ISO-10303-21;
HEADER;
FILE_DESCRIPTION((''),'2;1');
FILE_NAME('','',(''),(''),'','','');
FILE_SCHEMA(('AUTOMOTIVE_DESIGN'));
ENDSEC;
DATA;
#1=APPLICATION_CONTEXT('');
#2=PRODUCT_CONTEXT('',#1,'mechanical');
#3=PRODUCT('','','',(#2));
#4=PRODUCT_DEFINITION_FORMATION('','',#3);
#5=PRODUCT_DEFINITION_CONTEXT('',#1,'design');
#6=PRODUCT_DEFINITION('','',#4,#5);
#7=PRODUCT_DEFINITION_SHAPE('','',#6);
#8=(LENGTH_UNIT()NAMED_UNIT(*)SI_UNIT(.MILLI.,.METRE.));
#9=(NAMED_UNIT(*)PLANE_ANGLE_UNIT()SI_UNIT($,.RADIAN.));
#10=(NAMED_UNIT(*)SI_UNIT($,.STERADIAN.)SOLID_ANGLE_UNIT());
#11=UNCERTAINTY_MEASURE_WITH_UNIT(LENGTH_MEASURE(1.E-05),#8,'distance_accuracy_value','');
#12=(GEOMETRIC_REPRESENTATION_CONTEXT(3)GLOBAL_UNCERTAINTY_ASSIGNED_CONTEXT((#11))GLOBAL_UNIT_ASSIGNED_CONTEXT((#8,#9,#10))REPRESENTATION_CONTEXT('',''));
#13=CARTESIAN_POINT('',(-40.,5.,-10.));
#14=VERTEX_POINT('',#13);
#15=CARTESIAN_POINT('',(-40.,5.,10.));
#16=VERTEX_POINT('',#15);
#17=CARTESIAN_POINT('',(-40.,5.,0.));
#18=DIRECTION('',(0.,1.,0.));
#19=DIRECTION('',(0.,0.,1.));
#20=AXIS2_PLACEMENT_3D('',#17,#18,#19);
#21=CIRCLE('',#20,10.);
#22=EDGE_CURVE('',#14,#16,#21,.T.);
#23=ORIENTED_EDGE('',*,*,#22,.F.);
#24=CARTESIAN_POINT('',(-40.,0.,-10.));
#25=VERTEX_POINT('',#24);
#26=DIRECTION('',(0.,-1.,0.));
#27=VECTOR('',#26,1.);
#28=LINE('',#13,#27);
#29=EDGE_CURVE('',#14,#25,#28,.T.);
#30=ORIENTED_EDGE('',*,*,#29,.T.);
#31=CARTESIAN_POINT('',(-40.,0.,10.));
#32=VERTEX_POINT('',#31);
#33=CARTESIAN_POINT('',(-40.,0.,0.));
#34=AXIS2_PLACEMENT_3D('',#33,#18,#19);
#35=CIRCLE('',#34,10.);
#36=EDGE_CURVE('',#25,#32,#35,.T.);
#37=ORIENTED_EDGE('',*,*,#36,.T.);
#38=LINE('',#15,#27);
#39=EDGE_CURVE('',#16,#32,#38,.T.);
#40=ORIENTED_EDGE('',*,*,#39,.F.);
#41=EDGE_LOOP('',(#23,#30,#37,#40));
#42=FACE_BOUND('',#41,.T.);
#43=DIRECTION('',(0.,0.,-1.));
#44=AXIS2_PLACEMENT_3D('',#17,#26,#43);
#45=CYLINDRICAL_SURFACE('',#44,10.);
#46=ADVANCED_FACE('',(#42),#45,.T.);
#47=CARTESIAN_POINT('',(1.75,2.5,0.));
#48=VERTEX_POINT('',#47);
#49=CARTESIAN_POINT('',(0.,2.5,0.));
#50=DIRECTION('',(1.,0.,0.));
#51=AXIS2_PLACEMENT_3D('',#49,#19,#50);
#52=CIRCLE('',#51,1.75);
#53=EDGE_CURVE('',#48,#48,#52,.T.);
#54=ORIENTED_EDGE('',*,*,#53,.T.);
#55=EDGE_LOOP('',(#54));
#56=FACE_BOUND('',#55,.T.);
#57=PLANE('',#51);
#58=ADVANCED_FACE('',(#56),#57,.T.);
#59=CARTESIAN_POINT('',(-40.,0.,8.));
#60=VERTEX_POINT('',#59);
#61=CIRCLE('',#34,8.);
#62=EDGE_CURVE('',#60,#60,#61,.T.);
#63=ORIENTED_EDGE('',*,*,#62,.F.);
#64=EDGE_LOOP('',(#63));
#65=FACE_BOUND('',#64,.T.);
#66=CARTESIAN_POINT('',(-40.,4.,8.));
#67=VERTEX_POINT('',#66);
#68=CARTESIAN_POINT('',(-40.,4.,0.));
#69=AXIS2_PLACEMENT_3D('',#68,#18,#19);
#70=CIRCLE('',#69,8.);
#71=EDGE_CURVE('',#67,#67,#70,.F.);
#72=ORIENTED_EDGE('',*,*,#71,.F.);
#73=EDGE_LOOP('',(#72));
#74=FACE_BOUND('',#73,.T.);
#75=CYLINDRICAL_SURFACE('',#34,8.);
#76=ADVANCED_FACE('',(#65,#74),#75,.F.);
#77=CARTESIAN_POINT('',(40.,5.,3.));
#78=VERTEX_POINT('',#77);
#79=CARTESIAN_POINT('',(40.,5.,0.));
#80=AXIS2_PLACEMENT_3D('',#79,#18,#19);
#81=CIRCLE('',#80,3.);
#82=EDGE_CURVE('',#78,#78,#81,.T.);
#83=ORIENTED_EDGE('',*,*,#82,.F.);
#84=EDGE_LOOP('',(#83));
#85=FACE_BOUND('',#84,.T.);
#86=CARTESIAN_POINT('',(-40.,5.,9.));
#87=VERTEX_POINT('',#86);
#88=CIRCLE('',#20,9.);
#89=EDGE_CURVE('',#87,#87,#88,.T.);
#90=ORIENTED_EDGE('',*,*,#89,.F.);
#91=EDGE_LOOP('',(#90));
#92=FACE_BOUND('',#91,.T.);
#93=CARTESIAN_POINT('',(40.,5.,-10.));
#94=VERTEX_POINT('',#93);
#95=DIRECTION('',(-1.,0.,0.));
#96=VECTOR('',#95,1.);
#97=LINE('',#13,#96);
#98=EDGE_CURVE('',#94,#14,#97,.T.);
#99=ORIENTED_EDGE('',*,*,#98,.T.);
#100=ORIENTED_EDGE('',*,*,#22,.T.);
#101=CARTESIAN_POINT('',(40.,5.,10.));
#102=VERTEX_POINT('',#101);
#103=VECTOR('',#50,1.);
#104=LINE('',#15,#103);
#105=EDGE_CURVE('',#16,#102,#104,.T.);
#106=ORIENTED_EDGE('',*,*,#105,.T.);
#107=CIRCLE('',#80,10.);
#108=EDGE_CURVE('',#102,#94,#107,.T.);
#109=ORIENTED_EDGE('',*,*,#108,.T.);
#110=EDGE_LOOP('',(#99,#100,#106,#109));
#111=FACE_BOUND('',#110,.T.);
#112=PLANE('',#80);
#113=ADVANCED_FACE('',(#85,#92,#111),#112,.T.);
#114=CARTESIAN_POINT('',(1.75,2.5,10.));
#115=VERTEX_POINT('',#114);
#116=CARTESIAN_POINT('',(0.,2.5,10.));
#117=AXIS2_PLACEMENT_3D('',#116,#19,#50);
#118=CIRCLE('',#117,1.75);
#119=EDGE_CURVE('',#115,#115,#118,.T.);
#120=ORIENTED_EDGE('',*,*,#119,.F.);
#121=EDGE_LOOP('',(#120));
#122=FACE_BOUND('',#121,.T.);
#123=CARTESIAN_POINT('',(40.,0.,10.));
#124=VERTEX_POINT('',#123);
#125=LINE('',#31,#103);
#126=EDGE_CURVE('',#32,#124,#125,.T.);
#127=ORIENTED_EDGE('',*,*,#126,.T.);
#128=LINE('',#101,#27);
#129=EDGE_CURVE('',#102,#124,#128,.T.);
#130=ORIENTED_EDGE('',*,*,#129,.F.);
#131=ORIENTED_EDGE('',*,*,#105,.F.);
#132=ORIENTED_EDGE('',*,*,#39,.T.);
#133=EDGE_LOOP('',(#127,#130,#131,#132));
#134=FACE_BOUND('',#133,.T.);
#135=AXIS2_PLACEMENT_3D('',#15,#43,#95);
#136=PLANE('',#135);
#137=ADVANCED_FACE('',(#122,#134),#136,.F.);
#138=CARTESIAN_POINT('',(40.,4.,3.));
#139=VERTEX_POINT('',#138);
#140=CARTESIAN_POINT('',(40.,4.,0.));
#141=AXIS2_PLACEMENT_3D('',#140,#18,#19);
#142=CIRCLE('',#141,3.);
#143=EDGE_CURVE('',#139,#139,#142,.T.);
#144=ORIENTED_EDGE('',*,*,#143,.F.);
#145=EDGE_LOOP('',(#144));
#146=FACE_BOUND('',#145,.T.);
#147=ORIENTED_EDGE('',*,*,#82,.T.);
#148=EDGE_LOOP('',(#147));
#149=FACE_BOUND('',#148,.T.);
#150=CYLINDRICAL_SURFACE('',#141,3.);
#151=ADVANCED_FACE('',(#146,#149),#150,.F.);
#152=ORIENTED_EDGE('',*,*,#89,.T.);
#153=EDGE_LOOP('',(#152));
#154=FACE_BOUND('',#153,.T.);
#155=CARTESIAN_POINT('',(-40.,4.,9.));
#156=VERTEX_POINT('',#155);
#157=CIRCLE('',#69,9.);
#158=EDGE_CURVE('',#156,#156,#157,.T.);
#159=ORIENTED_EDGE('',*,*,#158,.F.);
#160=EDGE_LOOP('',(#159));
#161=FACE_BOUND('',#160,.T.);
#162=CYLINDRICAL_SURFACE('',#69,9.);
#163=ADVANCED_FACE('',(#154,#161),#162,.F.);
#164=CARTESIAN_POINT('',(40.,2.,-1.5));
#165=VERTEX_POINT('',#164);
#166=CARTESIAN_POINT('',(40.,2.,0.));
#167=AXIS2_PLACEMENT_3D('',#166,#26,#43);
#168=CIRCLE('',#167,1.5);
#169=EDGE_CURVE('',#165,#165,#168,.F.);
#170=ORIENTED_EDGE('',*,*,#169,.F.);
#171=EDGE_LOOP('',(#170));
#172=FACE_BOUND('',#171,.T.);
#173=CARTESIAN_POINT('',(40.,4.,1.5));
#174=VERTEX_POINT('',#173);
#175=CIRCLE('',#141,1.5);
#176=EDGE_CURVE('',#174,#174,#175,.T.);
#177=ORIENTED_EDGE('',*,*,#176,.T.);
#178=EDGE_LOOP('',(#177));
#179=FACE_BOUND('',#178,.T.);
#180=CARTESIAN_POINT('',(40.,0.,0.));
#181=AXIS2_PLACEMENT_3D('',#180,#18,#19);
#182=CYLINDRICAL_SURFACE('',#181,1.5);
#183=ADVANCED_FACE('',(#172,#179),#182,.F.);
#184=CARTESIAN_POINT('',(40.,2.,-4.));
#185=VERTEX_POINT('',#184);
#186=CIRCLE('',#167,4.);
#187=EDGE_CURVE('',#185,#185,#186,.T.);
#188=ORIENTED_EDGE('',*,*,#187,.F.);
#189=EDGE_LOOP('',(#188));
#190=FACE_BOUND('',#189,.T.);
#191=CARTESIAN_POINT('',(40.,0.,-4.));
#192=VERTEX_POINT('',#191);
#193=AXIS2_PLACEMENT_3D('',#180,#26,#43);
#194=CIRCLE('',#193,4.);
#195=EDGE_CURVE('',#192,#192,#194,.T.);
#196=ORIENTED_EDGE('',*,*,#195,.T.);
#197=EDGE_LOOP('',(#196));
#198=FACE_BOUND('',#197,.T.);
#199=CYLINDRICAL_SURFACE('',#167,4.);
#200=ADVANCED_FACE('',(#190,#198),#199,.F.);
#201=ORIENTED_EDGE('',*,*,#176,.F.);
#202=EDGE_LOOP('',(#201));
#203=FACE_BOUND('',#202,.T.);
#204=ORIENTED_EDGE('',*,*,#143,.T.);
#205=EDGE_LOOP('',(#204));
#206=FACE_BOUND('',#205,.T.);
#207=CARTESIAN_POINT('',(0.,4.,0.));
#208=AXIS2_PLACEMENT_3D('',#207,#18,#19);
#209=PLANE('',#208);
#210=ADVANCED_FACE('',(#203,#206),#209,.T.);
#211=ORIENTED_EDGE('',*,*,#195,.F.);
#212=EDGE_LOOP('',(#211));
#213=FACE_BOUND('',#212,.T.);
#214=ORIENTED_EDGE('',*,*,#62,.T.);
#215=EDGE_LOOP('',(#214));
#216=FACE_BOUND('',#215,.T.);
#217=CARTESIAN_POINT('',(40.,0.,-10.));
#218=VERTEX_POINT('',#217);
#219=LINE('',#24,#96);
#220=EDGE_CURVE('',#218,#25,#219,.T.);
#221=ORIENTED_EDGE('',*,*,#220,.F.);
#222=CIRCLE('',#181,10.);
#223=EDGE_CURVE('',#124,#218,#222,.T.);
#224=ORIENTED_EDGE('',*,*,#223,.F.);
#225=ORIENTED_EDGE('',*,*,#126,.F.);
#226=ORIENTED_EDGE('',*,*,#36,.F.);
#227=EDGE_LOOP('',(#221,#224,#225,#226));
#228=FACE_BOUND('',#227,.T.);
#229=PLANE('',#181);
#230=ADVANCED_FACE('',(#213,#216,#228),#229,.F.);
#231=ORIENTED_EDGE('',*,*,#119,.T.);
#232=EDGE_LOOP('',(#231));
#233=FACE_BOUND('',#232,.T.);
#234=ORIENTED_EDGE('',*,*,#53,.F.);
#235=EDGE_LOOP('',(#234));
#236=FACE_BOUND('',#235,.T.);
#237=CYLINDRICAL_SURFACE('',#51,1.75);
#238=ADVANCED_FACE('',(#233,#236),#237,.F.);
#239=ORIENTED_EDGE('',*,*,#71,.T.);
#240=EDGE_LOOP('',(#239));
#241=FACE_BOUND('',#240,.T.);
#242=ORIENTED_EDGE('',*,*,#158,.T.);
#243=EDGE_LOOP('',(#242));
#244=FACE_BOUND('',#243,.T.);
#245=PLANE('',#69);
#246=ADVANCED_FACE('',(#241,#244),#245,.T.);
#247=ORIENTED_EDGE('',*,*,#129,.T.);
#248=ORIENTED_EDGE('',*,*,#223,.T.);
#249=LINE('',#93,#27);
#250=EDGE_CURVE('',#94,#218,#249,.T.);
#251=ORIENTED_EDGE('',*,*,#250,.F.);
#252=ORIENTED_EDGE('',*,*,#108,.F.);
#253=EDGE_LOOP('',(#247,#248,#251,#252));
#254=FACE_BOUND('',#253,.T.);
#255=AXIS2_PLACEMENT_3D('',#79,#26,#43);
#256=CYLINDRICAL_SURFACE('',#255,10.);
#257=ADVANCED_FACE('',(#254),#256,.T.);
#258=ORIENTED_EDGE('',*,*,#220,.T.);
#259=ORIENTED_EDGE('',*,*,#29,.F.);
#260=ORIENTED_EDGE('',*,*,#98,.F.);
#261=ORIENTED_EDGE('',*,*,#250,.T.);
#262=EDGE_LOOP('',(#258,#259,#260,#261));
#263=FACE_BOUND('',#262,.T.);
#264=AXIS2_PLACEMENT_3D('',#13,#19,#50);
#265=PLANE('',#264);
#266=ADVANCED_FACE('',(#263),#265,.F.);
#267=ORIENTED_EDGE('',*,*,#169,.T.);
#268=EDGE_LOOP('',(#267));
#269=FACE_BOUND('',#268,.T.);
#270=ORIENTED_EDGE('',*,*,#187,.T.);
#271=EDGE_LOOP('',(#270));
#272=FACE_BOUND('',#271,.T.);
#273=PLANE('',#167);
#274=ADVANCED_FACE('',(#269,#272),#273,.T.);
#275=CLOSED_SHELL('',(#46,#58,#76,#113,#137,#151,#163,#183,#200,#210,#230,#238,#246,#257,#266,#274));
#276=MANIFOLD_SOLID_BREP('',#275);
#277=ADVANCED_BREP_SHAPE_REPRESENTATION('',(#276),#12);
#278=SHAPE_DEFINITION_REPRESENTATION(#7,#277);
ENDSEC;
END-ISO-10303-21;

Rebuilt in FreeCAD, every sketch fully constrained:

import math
import FreeCAD as App
import Part
import Sketcher
from FreeCAD import Vector

doc = App.newDocument("Part")
body = doc.addObject("PartDesign::Body", "Body")

sketch1 = body.newObject("Sketcher::SketchObject", "Sketch")
sketch1.AttachmentSupport = (doc.getObject("XZ_Plane"), [""])
sketch1.MapMode = "FlatFace"
sketch1.addGeometry(Part.LineSegment(Vector(40, -10, 0), Vector(-40, -10, 0)), False)
sketch1.addGeometry(Part.ArcOfCircle(Part.Circle(Vector(-40, 0, 0), Vector(0, 0, 1), 10), math.radians(90), math.radians(270)), False)
sketch1.addGeometry(Part.LineSegment(Vector(-40, 10, 0), Vector(40, 10, 0)), False)
sketch1.addGeometry(Part.ArcOfCircle(Part.Circle(Vector(40, 0, 0), Vector(0, 0, 1), 10), math.radians(-90), math.radians(90)), False)
sketch1.addConstraint(Sketcher.Constraint("Tangent", 0, 2, 1, 2))
sketch1.addConstraint(Sketcher.Constraint("Tangent", 1, 1, 2, 1))
sketch1.addConstraint(Sketcher.Constraint("Tangent", 2, 2, 3, 2))
sketch1.addConstraint(Sketcher.Constraint("Tangent", 3, 1, 0, 1))
sketch1.addConstraint(Sketcher.Constraint("Horizontal", 0))
sketch1.addConstraint(Sketcher.Constraint("Horizontal", 2))
sketch1.addConstraint(Sketcher.Constraint("Symmetric", 1, 3, 3, 3, -1, 1))
sketch1.addConstraint(Sketcher.Constraint("Radius", 1, 10.0))
sketch1.addConstraint(Sketcher.Constraint("DistanceX", 0, 2, 0, 1, 80.0))
pad1 = body.newObject("PartDesign::Pad", "Pad")
pad1.Profile = sketch1
pad1.Length = 5
pad1.Reversed = True

sketch2 = body.newObject("Sketcher::SketchObject", "Sketch001")
sketch2.AttachmentSupport = (doc.getObject("XZ_Plane"), [""])
sketch2.MapMode = "FlatFace"
sketch2.AttachmentOffset = App.Placement(Vector(0, 0, -5), App.Rotation())
sketch2.addGeometry(Part.ArcOfCircle(Part.Circle(Vector(-40, 0, 0), Vector(0, 0, 1), 8), math.radians(-90), math.radians(0)), False)
sketch2.addGeometry(Part.ArcOfCircle(Part.Circle(Vector(-40, 0, 0), Vector(0, 0, 1), 8), math.radians(90), math.radians(270)), False)
sketch2.addGeometry(Part.ArcOfCircle(Part.Circle(Vector(-40, 0, 0), Vector(0, 0, 1), 8), math.radians(0), math.radians(90)), False)
sketch2.addConstraint(Sketcher.Constraint("Tangent", 0, 1, 1, 2))
sketch2.addConstraint(Sketcher.Constraint("Tangent", 1, 1, 2, 2))
sketch2.addConstraint(Sketcher.Constraint("Tangent", 2, 1, 0, 2))
sketch2.addConstraint(Sketcher.Constraint("Symmetric", 0, 1, 1, 1, -1))
sketch2.addConstraint(Sketcher.Constraint("PointOnObject", 2, 1, -1))
sketch2.addConstraint(Sketcher.Constraint("Vertical", 2, 3, 0, 1))
sketch2.addConstraint(Sketcher.Constraint("Radius", 0, 8.0))
sketch2.addConstraint(Sketcher.Constraint("DistanceX", 0, 3, -1, 1, 40.0))
pocket1 = body.newObject("PartDesign::Pocket", "Pocket")
pocket1.Profile = sketch2
pocket1.Type = "ThroughAll"
pocket1.Reversed = True

sketch3 = body.newObject("Sketcher::SketchObject", "Sketch002")
sketch3.AttachmentSupport = (doc.getObject("XZ_Plane"), [""])
sketch3.MapMode = "FlatFace"
sketch3.AttachmentOffset = App.Placement(Vector(0, 0, -5), App.Rotation())
sketch3.addGeometry(Part.Circle(Vector(-40, 0, 0), Vector(0, 0, 1), 9), False)
sketch3.addConstraint(Sketcher.Constraint("PointOnObject", 0, 3, -1))
sketch3.addConstraint(Sketcher.Constraint("Diameter", 0, 18.0))
sketch3.addConstraint(Sketcher.Constraint("DistanceX", 0, 3, -1, 1, 40.0))
pocket2 = body.newObject("PartDesign::Pocket", "Pocket001")
pocket2.Profile = sketch3
pocket2.Length = 1
pocket2.Reversed = True

sketch4 = body.newObject("Sketcher::SketchObject", "Sketch003")
sketch4.AttachmentSupport = (doc.getObject("XZ_Plane"), [""])
sketch4.MapMode = "FlatFace"
sketch4.AttachmentOffset = App.Placement(Vector(0, 0, -5), App.Rotation())
sketch4.addGeometry(Part.Circle(Vector(40, 0, 0), Vector(0, 0, 1), 3), False)
sketch4.addConstraint(Sketcher.Constraint("PointOnObject", 0, 3, -1))
sketch4.addConstraint(Sketcher.Constraint("Diameter", 0, 6.0))
sketch4.addConstraint(Sketcher.Constraint("DistanceX", -1, 1, 0, 3, 40.0))
pocket3 = body.newObject("PartDesign::Pocket", "Pocket002")
pocket3.Profile = sketch4
pocket3.Length = 1
pocket3.Reversed = True

sketch5 = body.newObject("Sketcher::SketchObject", "Sketch004")
sketch5.AttachmentSupport = (doc.getObject("XZ_Plane"), [""])
sketch5.MapMode = "FlatFace"
sketch5.AttachmentOffset = App.Placement(Vector(0, 0, -4), App.Rotation())
sketch5.addGeometry(Part.Circle(Vector(40, 0, 0), Vector(0, 0, 1), 1.5), False)
sketch5.addConstraint(Sketcher.Constraint("PointOnObject", 0, 3, -1))
sketch5.addConstraint(Sketcher.Constraint("Diameter", 0, 3.0))
sketch5.addConstraint(Sketcher.Constraint("DistanceX", -1, 1, 0, 3, 40.0))
pocket4 = body.newObject("PartDesign::Pocket", "Pocket003")
pocket4.Profile = sketch5
pocket4.Type = "ThroughAll"
pocket4.Reversed = True

sketch6 = body.newObject("Sketcher::SketchObject", "Sketch005")
sketch6.AttachmentSupport = (doc.getObject("XZ_Plane"), [""])
sketch6.MapMode = "FlatFace"
sketch6.addGeometry(Part.Circle(Vector(40, 0, 0), Vector(0, 0, 1), 4), False)
sketch6.addConstraint(Sketcher.Constraint("PointOnObject", 0, 3, -1))
sketch6.addConstraint(Sketcher.Constraint("Diameter", 0, 8.0))
sketch6.addConstraint(Sketcher.Constraint("DistanceX", -1, 1, 0, 3, 40.0))
pocket5 = body.newObject("PartDesign::Pocket", "Pocket004")
pocket5.Profile = sketch6
pocket5.Length = 2

sketch7 = body.newObject("Sketcher::SketchObject", "Sketch006")
sketch7.AttachmentSupport = (doc.getObject("XY_Plane"), [""])
sketch7.MapMode = "FlatFace"
sketch7.AttachmentOffset = App.Placement(Vector(0, 0, 10), App.Rotation())
sketch7.addGeometry(Part.Circle(Vector(0, 2.5, 0), Vector(0, 0, 1), 1.8), False)
sketch7.addConstraint(Sketcher.Constraint("PointOnObject", 0, 3, -2))
sketch7.addConstraint(Sketcher.Constraint("Diameter", 0, 3.5))
sketch7.addConstraint(Sketcher.Constraint("DistanceY", -1, 1, 0, 3, 2.5))
pocket6 = body.newObject("PartDesign::Pocket", "Pocket005")
pocket6.Profile = sketch7
pocket6.Length = 10

doc.recompute()
